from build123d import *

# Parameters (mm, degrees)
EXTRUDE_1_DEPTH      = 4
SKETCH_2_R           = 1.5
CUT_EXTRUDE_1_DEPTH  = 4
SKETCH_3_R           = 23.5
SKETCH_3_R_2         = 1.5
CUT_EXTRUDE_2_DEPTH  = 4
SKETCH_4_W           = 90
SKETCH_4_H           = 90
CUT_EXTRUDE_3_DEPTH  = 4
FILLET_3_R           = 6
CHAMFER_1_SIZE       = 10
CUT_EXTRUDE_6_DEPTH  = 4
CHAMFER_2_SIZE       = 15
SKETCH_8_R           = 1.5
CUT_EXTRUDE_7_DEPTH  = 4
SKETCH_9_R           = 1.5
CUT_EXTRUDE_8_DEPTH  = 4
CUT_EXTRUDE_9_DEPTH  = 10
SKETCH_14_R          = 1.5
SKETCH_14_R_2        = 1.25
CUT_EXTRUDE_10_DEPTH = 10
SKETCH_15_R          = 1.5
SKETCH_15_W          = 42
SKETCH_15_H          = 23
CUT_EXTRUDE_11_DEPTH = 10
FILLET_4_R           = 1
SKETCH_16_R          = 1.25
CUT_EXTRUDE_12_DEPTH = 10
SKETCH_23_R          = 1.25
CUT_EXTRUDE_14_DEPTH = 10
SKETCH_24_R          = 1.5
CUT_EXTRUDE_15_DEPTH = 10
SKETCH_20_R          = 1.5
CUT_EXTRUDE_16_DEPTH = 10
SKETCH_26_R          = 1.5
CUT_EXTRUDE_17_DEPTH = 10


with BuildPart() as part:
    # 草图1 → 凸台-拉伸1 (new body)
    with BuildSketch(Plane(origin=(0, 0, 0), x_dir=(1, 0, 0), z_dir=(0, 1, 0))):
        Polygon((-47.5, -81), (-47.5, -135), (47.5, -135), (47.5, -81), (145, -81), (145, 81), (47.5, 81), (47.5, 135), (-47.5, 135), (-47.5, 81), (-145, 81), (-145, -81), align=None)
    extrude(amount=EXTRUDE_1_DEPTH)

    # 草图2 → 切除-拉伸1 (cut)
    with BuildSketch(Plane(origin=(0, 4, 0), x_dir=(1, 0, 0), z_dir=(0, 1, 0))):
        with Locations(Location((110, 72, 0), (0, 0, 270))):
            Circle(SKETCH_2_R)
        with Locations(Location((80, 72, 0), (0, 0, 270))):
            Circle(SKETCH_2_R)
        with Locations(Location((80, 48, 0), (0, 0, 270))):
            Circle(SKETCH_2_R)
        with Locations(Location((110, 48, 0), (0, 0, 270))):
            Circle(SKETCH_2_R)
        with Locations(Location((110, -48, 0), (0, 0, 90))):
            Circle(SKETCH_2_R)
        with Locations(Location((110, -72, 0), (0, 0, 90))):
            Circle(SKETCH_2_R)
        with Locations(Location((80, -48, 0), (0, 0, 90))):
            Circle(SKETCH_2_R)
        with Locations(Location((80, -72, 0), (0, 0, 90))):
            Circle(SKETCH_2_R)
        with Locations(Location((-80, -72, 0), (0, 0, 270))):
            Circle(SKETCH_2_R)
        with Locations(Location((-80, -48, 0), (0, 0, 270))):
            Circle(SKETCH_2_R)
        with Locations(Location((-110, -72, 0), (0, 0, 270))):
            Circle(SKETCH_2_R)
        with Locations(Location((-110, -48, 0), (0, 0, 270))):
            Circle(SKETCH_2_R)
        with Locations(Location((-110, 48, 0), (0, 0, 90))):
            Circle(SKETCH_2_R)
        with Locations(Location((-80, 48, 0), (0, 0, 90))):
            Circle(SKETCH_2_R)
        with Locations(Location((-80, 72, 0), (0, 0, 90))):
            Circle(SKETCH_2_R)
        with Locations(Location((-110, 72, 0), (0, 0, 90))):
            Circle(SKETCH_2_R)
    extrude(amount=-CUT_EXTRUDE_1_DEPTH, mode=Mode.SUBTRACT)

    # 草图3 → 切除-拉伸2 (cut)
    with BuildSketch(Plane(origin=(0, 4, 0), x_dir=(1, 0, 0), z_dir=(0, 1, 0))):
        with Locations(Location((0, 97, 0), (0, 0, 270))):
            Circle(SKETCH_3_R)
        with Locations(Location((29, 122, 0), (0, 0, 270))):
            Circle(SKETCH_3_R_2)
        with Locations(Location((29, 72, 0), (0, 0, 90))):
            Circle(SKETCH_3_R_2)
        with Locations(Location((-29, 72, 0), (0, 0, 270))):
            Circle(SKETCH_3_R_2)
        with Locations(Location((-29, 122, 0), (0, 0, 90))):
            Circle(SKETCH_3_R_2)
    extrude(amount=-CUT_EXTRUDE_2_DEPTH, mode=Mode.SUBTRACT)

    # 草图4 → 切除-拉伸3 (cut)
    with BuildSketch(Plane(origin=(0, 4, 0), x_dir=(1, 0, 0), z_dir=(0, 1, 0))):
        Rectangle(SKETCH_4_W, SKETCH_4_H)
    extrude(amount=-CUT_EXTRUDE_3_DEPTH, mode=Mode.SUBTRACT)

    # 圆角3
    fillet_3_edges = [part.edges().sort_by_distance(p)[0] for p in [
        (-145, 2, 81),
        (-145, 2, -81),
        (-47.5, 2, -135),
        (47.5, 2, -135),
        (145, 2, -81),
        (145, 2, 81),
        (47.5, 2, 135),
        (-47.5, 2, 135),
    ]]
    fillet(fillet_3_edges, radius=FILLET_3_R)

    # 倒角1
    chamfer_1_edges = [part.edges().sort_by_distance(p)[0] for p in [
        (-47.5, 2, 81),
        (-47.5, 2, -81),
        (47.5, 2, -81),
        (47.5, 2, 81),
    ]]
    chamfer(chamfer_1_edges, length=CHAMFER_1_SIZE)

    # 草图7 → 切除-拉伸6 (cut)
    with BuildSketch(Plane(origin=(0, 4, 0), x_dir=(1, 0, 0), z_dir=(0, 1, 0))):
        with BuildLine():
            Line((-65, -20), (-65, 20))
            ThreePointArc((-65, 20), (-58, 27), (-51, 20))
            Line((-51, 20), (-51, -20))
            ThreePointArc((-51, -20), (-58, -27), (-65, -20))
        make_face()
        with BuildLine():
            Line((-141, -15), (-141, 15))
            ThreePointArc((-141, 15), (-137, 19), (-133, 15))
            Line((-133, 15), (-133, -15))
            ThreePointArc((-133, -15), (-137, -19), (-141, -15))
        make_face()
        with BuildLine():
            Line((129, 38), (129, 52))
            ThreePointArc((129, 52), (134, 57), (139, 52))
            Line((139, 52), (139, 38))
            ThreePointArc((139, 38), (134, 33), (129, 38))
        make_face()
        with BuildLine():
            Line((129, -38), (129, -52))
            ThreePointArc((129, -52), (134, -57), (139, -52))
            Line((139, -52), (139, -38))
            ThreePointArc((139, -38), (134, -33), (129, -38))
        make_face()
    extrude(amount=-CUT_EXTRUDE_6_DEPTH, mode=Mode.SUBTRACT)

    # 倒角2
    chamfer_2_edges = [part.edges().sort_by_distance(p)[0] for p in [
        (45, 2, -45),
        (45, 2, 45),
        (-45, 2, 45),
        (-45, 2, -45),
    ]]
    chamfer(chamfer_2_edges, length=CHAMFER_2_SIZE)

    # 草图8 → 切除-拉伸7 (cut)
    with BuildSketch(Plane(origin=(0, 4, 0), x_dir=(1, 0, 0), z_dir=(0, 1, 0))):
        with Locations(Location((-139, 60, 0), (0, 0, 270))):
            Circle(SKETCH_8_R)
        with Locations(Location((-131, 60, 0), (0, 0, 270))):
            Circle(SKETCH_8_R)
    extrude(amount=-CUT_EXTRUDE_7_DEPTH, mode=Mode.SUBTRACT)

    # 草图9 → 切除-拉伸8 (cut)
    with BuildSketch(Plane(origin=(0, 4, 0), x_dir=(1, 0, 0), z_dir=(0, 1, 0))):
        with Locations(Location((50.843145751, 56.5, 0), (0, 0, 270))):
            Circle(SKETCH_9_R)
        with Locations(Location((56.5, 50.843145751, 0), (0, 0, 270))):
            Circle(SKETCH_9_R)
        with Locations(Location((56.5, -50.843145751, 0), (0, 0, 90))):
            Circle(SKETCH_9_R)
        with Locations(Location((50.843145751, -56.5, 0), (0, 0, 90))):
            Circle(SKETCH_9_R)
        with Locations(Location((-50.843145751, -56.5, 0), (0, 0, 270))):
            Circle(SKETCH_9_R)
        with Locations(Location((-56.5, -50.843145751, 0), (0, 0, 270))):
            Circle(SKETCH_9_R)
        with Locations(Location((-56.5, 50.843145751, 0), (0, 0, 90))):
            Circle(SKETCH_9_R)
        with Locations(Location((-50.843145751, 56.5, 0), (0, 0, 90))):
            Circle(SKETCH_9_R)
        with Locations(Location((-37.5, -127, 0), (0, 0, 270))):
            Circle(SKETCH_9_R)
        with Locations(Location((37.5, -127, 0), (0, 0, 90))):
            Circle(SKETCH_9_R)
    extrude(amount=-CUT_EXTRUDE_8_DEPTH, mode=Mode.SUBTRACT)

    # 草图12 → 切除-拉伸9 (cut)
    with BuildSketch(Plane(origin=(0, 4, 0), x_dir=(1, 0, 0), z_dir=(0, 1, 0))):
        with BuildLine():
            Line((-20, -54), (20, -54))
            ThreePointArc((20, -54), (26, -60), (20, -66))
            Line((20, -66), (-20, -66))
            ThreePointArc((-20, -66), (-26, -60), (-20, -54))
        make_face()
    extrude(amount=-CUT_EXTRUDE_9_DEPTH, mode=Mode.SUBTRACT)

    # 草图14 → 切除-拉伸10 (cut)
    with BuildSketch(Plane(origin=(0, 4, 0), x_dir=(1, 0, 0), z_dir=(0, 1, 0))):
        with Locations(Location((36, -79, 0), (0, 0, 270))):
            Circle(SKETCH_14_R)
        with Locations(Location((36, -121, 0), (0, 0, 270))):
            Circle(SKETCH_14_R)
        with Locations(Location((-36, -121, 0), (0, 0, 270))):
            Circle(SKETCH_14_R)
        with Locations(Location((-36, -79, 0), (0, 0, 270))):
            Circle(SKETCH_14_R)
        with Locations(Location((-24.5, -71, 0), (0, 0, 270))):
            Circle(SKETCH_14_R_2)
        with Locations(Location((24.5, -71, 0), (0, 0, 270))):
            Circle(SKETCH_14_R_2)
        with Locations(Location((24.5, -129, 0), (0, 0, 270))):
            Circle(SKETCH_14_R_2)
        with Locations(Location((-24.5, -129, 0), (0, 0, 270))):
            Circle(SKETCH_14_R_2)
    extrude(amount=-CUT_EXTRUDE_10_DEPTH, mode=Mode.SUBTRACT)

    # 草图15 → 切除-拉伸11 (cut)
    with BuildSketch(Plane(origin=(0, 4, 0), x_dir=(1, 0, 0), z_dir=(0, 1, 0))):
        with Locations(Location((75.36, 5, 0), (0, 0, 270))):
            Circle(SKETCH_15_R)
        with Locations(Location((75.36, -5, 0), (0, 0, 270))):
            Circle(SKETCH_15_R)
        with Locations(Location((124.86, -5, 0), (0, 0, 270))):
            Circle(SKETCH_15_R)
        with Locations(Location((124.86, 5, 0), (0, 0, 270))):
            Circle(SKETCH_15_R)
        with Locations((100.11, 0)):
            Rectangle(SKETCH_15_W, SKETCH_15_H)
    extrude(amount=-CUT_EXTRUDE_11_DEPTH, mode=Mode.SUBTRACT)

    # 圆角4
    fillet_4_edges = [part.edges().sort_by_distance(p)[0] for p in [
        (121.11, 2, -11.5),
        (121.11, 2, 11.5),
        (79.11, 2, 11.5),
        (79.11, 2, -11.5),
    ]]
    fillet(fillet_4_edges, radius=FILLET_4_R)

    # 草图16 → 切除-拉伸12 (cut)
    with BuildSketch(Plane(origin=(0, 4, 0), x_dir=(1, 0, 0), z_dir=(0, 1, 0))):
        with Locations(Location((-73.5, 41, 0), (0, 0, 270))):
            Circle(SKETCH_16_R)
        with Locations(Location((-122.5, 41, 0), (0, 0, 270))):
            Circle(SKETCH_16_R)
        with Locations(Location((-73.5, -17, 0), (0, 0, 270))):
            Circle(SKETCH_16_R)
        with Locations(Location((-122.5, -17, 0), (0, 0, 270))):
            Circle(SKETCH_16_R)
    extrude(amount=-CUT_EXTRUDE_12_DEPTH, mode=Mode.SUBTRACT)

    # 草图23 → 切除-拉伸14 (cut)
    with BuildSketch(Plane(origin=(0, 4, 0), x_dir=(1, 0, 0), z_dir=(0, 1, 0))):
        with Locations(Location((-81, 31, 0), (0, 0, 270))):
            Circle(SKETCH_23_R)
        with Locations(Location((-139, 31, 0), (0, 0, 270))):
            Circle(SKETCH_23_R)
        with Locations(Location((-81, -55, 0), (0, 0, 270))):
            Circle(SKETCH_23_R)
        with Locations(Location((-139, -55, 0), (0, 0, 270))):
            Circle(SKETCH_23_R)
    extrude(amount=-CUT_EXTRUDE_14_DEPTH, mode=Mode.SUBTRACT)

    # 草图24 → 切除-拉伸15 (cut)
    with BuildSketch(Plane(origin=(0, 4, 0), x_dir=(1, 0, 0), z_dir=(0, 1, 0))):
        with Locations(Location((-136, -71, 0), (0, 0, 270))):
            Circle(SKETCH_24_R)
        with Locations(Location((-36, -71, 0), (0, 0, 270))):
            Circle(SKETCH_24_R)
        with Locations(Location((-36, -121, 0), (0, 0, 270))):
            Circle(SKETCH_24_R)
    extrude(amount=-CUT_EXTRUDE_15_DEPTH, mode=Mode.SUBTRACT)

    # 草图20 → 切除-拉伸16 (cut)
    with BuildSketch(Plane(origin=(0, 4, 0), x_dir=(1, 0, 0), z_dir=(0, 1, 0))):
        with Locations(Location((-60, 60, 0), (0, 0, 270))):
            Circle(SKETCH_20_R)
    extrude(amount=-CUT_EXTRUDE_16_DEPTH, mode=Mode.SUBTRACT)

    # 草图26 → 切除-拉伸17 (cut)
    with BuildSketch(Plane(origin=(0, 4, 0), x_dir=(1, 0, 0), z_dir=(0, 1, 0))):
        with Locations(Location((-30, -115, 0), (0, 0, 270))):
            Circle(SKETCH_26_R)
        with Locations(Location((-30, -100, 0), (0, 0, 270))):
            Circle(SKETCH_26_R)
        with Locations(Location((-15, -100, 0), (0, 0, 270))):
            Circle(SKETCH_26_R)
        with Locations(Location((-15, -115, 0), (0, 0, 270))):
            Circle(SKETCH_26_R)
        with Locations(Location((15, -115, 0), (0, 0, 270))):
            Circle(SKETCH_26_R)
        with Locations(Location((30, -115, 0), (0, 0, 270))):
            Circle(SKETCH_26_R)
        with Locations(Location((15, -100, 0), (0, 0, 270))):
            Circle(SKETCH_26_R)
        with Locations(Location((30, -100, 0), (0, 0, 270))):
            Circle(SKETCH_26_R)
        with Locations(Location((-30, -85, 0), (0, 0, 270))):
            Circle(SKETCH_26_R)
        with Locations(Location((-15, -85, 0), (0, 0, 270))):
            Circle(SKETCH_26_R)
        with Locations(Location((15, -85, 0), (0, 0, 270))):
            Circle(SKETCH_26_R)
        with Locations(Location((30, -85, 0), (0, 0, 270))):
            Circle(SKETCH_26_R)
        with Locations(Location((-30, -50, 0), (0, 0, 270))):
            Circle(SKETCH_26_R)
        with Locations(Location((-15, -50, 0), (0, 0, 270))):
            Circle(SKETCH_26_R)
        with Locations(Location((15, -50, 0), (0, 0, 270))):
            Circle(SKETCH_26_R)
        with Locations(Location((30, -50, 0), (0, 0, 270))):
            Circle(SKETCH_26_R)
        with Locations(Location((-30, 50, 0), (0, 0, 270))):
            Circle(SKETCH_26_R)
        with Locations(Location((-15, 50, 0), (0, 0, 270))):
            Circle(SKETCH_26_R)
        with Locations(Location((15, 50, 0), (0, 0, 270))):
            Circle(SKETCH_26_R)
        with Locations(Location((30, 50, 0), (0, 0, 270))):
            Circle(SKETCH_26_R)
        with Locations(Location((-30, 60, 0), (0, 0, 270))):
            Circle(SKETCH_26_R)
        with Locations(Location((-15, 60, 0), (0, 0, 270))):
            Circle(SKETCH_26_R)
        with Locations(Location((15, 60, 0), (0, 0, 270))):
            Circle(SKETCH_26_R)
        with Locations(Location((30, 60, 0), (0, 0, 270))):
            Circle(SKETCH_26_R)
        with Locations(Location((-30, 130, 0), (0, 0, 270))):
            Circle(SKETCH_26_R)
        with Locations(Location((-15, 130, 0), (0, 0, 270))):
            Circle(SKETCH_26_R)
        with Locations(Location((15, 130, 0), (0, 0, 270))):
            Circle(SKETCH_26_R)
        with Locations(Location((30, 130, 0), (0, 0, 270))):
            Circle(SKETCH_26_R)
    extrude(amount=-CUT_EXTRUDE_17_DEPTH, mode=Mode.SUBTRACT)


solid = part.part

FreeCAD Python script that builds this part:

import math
import FreeCAD as App
import Part
import Sketcher


def edges_at(feature, points):
    """Names of the edges that pass closest to the given points."""
    edges = feature.Shape.Edges
    near = lambda p: min(range(len(edges)), key=lambda i: edges[i].distToShape(Part.Vertex(*p))[0])
    return sorted({f"Edge{near(p) + 1}" for p in points})

doc = App.newDocument("Part")
body = doc.addObject("PartDesign::Body", "Body")

sketch1 = body.newObject("Sketcher::SketchObject", "Sketch")
sketch1.AttachmentSupport = (doc.getObject("XZ_Plane"), [""])
sketch1.MapMode = "FlatFace"
sketch1.addGeometry(Part.LineSegment(App.Vector(-47.5, 81, 0), App.Vector(-47.5, 135, 0)), False)
sketch1.addGeometry(Part.LineSegment(App.Vector(-47.5, 135, 0), App.Vector(47.5, 135, 0)), False)
sketch1.addGeometry(Part.LineSegment(App.Vector(47.5, 135, 0), App.Vector(47.5, 81, 0)), False)
sketch1.addGeometry(Part.LineSegment(App.Vector(47.5, 81, 0), App.Vector(145, 81, 0)), False)
sketch1.addGeometry(Part.LineSegment(App.Vector(145, 81, 0), App.Vector(145, -81, 0)), False)
sketch1.addGeometry(Part.LineSegment(App.Vector(145, -81, 0), App.Vector(47.5, -81, 0)), False)
sketch1.addGeometry(Part.LineSegment(App.Vector(47.5, -81, 0), App.Vector(47.5, -135, 0)), False)
sketch1.addGeometry(Part.LineSegment(App.Vector(47.5, -135, 0), App.Vector(-47.5, -135, 0)), False)
sketch1.addGeometry(Part.LineSegment(App.Vector(-47.5, -135, 0), App.Vector(-47.5, -81, 0)), False)
sketch1.addGeometry(Part.LineSegment(App.Vector(-47.5, -81, 0), App.Vector(-145, -81, 0)), False)
sketch1.addGeometry(Part.LineSegment(App.Vector(-145, -81, 0), App.Vector(-145, 81, 0)), False)
sketch1.addGeometry(Part.LineSegment(App.Vector(-145, 81, 0), App.Vector(-47.5, 81, 0)), False)
sketch1.addConstraint(Sketcher.Constraint("Coincident", 0, 2, 1, 1))
sketch1.addConstraint(Sketcher.Constraint("Coincident", 1, 2, 2, 1))
sketch1.addConstraint(Sketcher.Constraint("Coincident", 2, 2, 3, 1))
sketch1.addConstraint(Sketcher.Constraint("Coincident", 3, 2, 4, 1))
sketch1.addConstraint(Sketcher.Constraint("Coincident", 4, 2, 5, 1))
sketch1.addConstraint(Sketcher.Constraint("Coincident", 5, 2, 6, 1))
sketch1.addConstraint(Sketcher.Constraint("Coincident", 6, 2, 7, 1))
sketch1.addConstraint(Sketcher.Constraint("Coincident", 7, 2, 8, 1))
sketch1.addConstraint(Sketcher.Constraint("Coincident", 8, 2, 9, 1))
sketch1.addConstraint(Sketcher.Constraint("Coincident", 9, 2, 10, 1))
sketch1.addConstraint(Sketcher.Constraint("Coincident", 10, 2, 11, 1))
sketch1.addConstraint(Sketcher.Constraint("Coincident", 11, 2, 0, 1))
sketch1.addConstraint(Sketcher.Constraint("Vertical", 0))
sketch1.addConstraint(Sketcher.Constraint("Horizontal", 1))
sketch1.addConstraint(Sketcher.Constraint("Vertical", 2))
sketch1.addConstraint(Sketcher.Constraint("Horizontal", 3))
sketch1.addConstraint(Sketcher.Constraint("Vertical", 4))
sketch1.addConstraint(Sketcher.Constraint("Horizontal", 5))
sketch1.addConstraint(Sketcher.Constraint("Vertical", 6))
sketch1.addConstraint(Sketcher.Constraint("Horizontal", 7))
sketch1.addConstraint(Sketcher.Constraint("Vertical", 8))
sketch1.addConstraint(Sketcher.Constraint("Horizontal", 9))
sketch1.addConstraint(Sketcher.Constraint("Vertical", 10))
sketch1.addConstraint(Sketcher.Constraint("Horizontal", 11))
sketch1.addConstraint(Sketcher.Constraint("Symmetric", 0, 2, 6, 2, -1, 1))
sketch1.addConstraint(Sketcher.Constraint("Symmetric", 2, 2, 8, 2, -1, 1))
sketch1.addConstraint(Sketcher.Constraint("Symmetric", 4, 2, 10, 2, -1, 1))
sketch1.addConstraint(Sketcher.Constraint("Symmetric", 5, 2, 8, 2, -2))
sketch1.addConstraint(Sketcher.Constraint("DistanceX", 1, 1, 1, 2, 95.0))
sketch1.addConstraint(Sketcher.Constraint("DistanceY", 0, 1, 0, 2, 54.0))
sketch1.addConstraint(Sketcher.Constraint("DistanceY", 4, 2, 4, 1, 162.0))
sketch1.addConstraint(Sketcher.Constraint("DistanceX", 3, 1, 3, 2, 97.5))
pad1 = body.newObject("PartDesign::Pad", "Pad")
pad1.Profile = sketch1
pad1.Length = 4
pad1.Reversed = True

sketch2 = body.newObject("Sketcher::SketchObject", "Sketch001")
sketch2.AttachmentSupport = (doc.getObject("XZ_Plane"), [""])
sketch2.MapMode = "FlatFace"
sketch2.AttachmentOffset = App.Placement(App.Vector(0, 0, -4), App.Rotation())
sketch2.addGeometry(Part.Circle(App.Vector(110, -72, 0), App.Vector(0, 0, 1), 1.5), False)
sketch2.addGeometry(Part.Circle(App.Vector(80, -72, 0), App.Vector(0, 0, 1), 1.5), False)
sketch2.addGeometry(Part.Circle(App.Vector(80, -48, 0), App.Vector(0, 0, 1), 1.5), False)
sketch2.addGeometry(Part.Circle(App.Vector(110, -48, 0), App.Vector(0, 0, 1), 1.5), False)
sketch2.addGeometry(Part.Circle(App.Vector(110, 48, 0), App.Vector(0, 0, 1), 1.5), False)
sketch2.addGeometry(Part.Circle(App.Vector(110, 72, 0), App.Vector(0, 0, 1), 1.5), False)
sketch2.addGeometry(Part.Circle(App.Vector(80, 48, 0), App.Vector(0, 0, 1), 1.5), False)
sketch2.addGeometry(Part.Circle(App.Vector(80, 72, 0), App.Vector(0, 0, 1), 1.5), False)
sketch2.addGeometry(Part.Circle(App.Vector(-80, 72, 0), App.Vector(0, 0, 1), 1.5), False)
sketch2.addGeometry(Part.Circle(App.Vector(-80, 48, 0), App.Vector(0, 0, 1), 1.5), False)
sketch2.addGeometry(Part.Circle(App.Vector(-110, 72, 0), App.Vector(0, 0, 1), 1.5), False)
sketch2.addGeometry(Part.Circle(App.Vector(-110, 48, 0), App.Vector(0, 0, 1), 1.5), False)
sketch2.addGeometry(Part.Circle(App.Vector(-110, -48, 0), App.Vector(0, 0, 1), 1.5), False)
sketch2.addGeometry(Part.Circle(App.Vector(-80, -48, 0), App.Vector(0, 0, 1), 1.5), False)
sketch2.addGeometry(Part.Circle(App.Vector(-80, -72, 0), App.Vector(0, 0, 1), 1.5), False)
sketch2.addGeometry(Part.Circle(App.Vector(-110, -72, 0), App.Vector(0, 0, 1), 1.5), False)
sketch2.addConstraint(Sketcher.Constraint("Equal", 0, 1))
sketch2.addConstraint(Sketcher.Constraint("Equal", 1, 2))
sketch2.addConstraint(Sketcher.Constraint("Equal", 2, 3))
sketch2.addConstraint(Sketcher.Constraint("Equal", 3, 4))
sketch2.addConstraint(Sketcher.Constraint("Equal", 4, 5))
sketch2.addConstraint(Sketcher.Constraint("Equal", 5, 6))
sketch2.addConstraint(Sketcher.Constraint("Equal", 6, 7))
sketch2.addConstraint(Sketcher.Constraint("Equal", 7, 8))
sketch2.addConstraint(Sketcher.Constraint("Equal", 8, 9))
sketch2.addConstraint(Sketcher.Constraint("Equal", 9, 10))
sketch2.addConstraint(Sketcher.Constraint("Equal", 10, 11))
sketch2.addConstraint(Sketcher.Constraint("Equal", 11, 12))
sketch2.addConstraint(Sketcher.Constraint("Equal", 12, 13))
sketch2.addConstraint(Sketcher.Constraint("Equal", 13, 14))
sketch2.addConstraint(Sketcher.Constraint("Equal", 14, 15))
sketch2.addConstraint(Sketcher.Constraint("Symmetric", 1, 3, 8, 3, -1, 1))
sketch2.addConstraint(Sketcher.Constraint("Symmetric", 2, 3, 9, 3, -1, 1))
sketch2.addConstraint(Sketcher.Constraint("Symmetric", 0, 3, 10, 3, -1, 1))
sketch2.addConstraint(Sketcher.Constraint("Symmetric", 3, 3, 11, 3, -1, 1))
sketch2.addConstraint(Sketcher.Constraint("Symmetric", 4, 3, 12, 3, -1, 1))
sketch2.addConstraint(Sketcher.Constraint("Symmetric", 6, 3, 13, 3, -1, 1))
sketch2.addConstraint(Sketcher.Constraint("Symmetric", 7, 3, 14, 3, -1, 1))
sketch2.addConstraint(Sketcher.Constraint("Symmetric", 5, 3, 15, 3, -1, 1))
sketch2.addConstraint(Sketcher.Constraint("Symmetric", 7, 3, 8, 3, -2))
sketch2.addConstraint(Sketcher.Constraint("Symmetric", 6, 3, 9, 3, -2))
sketch2.addConstraint(Sketcher.Constraint("Symmetric", 5, 3, 10, 3, -2))
sketch2.addConstraint(Sketcher.Constraint("Symmetric", 4, 3, 11, 3, -2))
sketch2.addConstraint(Sketcher.Constraint("Horizontal", 0, 3, 1, 3))
sketch2.addConstraint(Sketcher.Constraint("Horizontal", 2, 3, 3, 3))
sketch2.addConstraint(Sketcher.Constraint("Vertical", 1, 3, 2, 3))
sketch2.addConstraint(Sketcher.Constraint("Vertical", 0, 3, 3, 3))
sketch2.addConstraint(Sketcher.Constraint("Diameter", 0, 3.0))
sketch2.addConstraint(Sketcher.Constraint("DistanceX", -1, 1, 0, 3, 110.0))
sketch2.addConstraint(Sketcher.Constraint("DistanceY", 0, 3, -1, 1, 72.0))
sketch2.addConstraint(Sketcher.Constraint("DistanceX", -1, 1, 1, 3, 80.0))
sketch2.addConstraint(Sketcher.Constraint("DistanceY", 2, 3, -1, 1, 48.0))
pocket1 = body.newObject("PartDesign::Pocket", "Pocket")
pocket1.Profile = sketch2
pocket1.Length = 4
pocket1.Reversed = True

sketch3 = body.newObject("Sketcher::SketchObject", "Sketch002")
sketch3.AttachmentSupport = (doc.getObject("XZ_Plane"), [""])
sketch3.MapMode = "FlatFace"
sketch3.AttachmentOffset = App.Placement(App.Vector(0, 0, -4), App.Rotation())
sketch3.addGeometry(Part.Circle(App.Vector(0, -97, 0), App.Vector(0, 0, 1), 23.5), False)
sketch3.addGeometry(Part.Circle(App.Vector(29, -122, 0), App.Vector(0, 0, 1), 1.5), False)
sketch3.addGeometry(Part.Circle(App.Vector(29, -72, 0), App.Vector(0, 0, 1), 1.5), False)
sketch3.addGeometry(Part.Circle(App.Vector(-29, -72, 0), App.Vector(0, 0, 1), 1.5), False)
sketch3.addGeometry(Part.Circle(App.Vector(-29, -122, 0), App.Vector(0, 0, 1), 1.5), False)
sketch3.addConstraint(Sketcher.Constraint("Equal", 1, 2))
sketch3.addConstraint(Sketcher.Constraint("Equal", 2, 3))
sketch3.addConstraint(Sketcher.Constraint("Equal", 3, 4))
sketch3.addConstraint(Sketcher.Constraint("Symmetric", 2, 3, 3, 3, -2))
sketch3.addConstraint(Sketcher.Constraint("Symmetric", 1, 3, 4, 3, -2))
sketch3.addConstraint(Sketcher.Constraint("PointOnObject", 0, 3, -2))
sketch3.addConstraint(Sketcher.Constraint("Vertical", 1, 3, 2, 3))
sketch3.addConstraint(Sketcher.Constraint("Diameter", 0, 47.0))
sketch3.addConstraint(Sketcher.Constraint("Diameter", 1, 3.0))
sketch3.addConstraint(Sketcher.Constraint("DistanceY", 0, 3, -1, 1, 97.0))
sketch3.addConstraint(Sketcher.Constraint("DistanceX", -1, 1, 1, 3, 29.0))
sketch3.addConstraint(Sketcher.Constraint("DistanceY", 1, 3, -1, 1, 122.0))
sketch3.addConstraint(Sketcher.Constraint("DistanceY", 2, 3, -1, 1, 72.0))
pocket2 = body.newObject("PartDesign::Pocket", "Pocket001")
pocket2.Profile = sketch3
pocket2.Length = 4
pocket2.Reversed = True

sketch4 = body.newObject("Sketcher::SketchObject", "Sketch003")
sketch4.AttachmentSupport = (doc.getObject("XZ_Plane"), [""])
sketch4.MapMode = "FlatFace"
sketch4.AttachmentOffset = App.Placement(App.Vector(0, 0, -4), App.Rotation())
sketch4.addGeometry(Part.LineSegment(App.Vector(-45, -45, 0), App.Vector(-45, 45, 0)), False)
sketch4.addGeometry(Part.LineSegment(App.Vector(-45, 45, 0), App.Vector(45, 45, 0)), False)
sketch4.addGeometry(Part.LineSegment(App.Vector(45, 45, 0), App.Vector(45, -45, 0)), False)
sketch4.addGeometry(Part.LineSegment(App.Vector(45, -45, 0), App.Vector(-45, -45, 0)), False)
sketch4.addConstraint(Sketcher.Constraint("Coincident", 0, 2, 1, 1))
sketch4.addConstraint(Sketcher.Constraint("Coincident", 1, 2, 2, 1))
sketch4.addConstraint(Sketcher.Constraint("Coincident", 2, 2, 3, 1))
sketch4.addConstraint(Sketcher.Constraint("Coincident", 3, 2, 0, 1))
sketch4.addConstraint(Sketcher.Constraint("Vertical", 0))
sketch4.addConstraint(Sketcher.Constraint("Horizontal", 1))
sketch4.addConstraint(Sketcher.Constraint("Vertical", 2))
sketch4.addConstraint(Sketcher.Constraint("Horizontal", 3))
sketch4.addConstraint(Sketcher.Constraint("Symmetric", 0, 2, 2, 2, -1, 1))
sketch4.addConstraint(Sketcher.Constraint("Equal", 3, 0))
sketch4.addConstraint(Sketcher.Constraint("DistanceX", 1, 1, 1, 2, 90.0))
pocket3 = body.newObject("PartDesign::Pocket", "Pocket002")
pocket3.Profile = sketch4
pocket3.Length = 4
pocket3.Reversed = True
doc.recompute()

fillet = body.newObject("PartDesign::Fillet", "Fillet")
fillet.Base = (pocket3, edges_at(pocket3, [
    (-145, 2, 81),
    (-145, 2, -81),
    (-47.5, 2, -135),
    (47.5, 2, -135),
    (145, 2, -81),
    (145, 2, 81),
    (47.5, 2, 135),
    (-47.5, 2, 135),
]))
fillet.Radius = 6
doc.recompute()

chamfer = body.newObject("PartDesign::Chamfer", "Chamfer")
chamfer.Base = (fillet, edges_at(fillet, [
    (-47.5, 2, 81),
    (-47.5, 2, -81),
    (47.5, 2, -81),
    (47.5, 2, 81),
]))
chamfer.Size = 10

sketch5 = body.newObject("Sketcher::SketchObject", "Sketch004")
sketch5.AttachmentSupport = (doc.getObject("XZ_Plane"), [""])
sketch5.MapMode = "FlatFace"
sketch5.AttachmentOffset = App.Placement(App.Vector(0, 0, -4), App.Rotation())
sketch5.addGeometry(Part.LineSegment(App.Vector(-65, -20, 0), App.Vector(-65, 20, 0)), False)
sketch5.addGeometry(Part.ArcOfCircle(Part.Circle(App.Vector(-58, 20, 0), App.Vector(0, 0, 1), 7), math.radians(0), math.radians(180)), False)
sketch5.addGeometry(Part.LineSegment(App.Vector(-51, 20, 0), App.Vector(-51, -20, 0)), False)
sketch5.addGeometry(Part.ArcOfCircle(Part.Circle(App.Vector(-58, -20, 0), App.Vector(0, 0, 1), 7), math.radians(180), math.radians(360)), False)
sketch5.addGeometry(Part.LineSegment(App.Vector(-141, -15, 0), App.Vector(-141, 15, 0)), False)
sketch5.addGeometry(Part.ArcOfCircle(Part.Circle(App.Vector(-137, 15, 0), App.Vector(0, 0, 1), 4), math.radians(0), math.radians(180)), False)
sketch5.addGeometry(Part.LineSegment(App.Vector(-133, 15, 0), App.Vector(-133, -15, 0)), False)
sketch5.addGeometry(Part.ArcOfCircle(Part.Circle(App.Vector(-137, -15, 0), App.Vector(0, 0, 1), 4), math.radians(180), math.radians(360)), False)
sketch5.addGeometry(Part.LineSegment(App.Vector(129, -52, 0), App.Vector(129, -38, 0)), False)
sketch5.addGeometry(Part.ArcOfCircle(Part.Circle(App.Vector(134, -38, 0), App.Vector(0, 0, 1), 5), math.radians(0), math.radians(180)), False)
sketch5.addGeometry(Part.LineSegment(App.Vector(139, -38, 0), App.Vector(139, -52, 0)), False)
sketch5.addGeometry(Part.ArcOfCircle(Part.Circle(App.Vector(134, -52, 0), App.Vector(0, 0, 1), 5), math.radians(180), math.radians(360)), False)
sketch5.addGeometry(Part.LineSegment(App.Vector(129, 38, 0), App.Vector(129, 52, 0)), False)
sketch5.addGeometry(Part.ArcOfCircle(Part.Circle(App.Vector(134, 52, 0), App.Vector(0, 0, 1), 5), math.radians(0), math.radians(180)), False)
sketch5.addGeometry(Part.LineSegment(App.Vector(139, 52, 0), App.Vector(139, 38, 0)), False)
sketch5.addGeometry(Part.ArcOfCircle(Part.Circle(App.Vector(134, 38, 0), App.Vector(0, 0, 1), 5), math.radians(180), math.radians(360)), False)
sketch5.addConstraint(Sketcher.Constraint("Tangent", 0, 2, 1, 2))
sketch5.addConstraint(Sketcher.Constraint("Tangent", 1, 1, 2, 1))
sketch5.addConstraint(Sketcher.Constraint("Tangent", 2, 2, 3, 2))
sketch5.addConstraint(Sketcher.Constraint("Tangent", 3, 1, 0, 1))
sketch5.addConstraint(Sketcher.Constraint("Tangent", 4, 2, 5, 2))
sketch5.addConstraint(Sketcher.Constraint("Tangent", 5, 1, 6, 1))
sketch5.addConstraint(Sketcher.Constraint("Tangent", 6, 2, 7, 2))
sketch5.addConstraint(Sketcher.Constraint("Tangent", 7, 1, 4, 1))
sketch5.addConstraint(Sketcher.Constraint("Tangent", 8, 2, 9, 2))
sketch5.addConstraint(Sketcher.Constraint("Tangent", 9, 1, 10, 1))
sketch5.addConstraint(Sketcher.Constraint("Tangent", 10, 2, 11, 2))
sketch5.addConstraint(Sketcher.Constraint("Tangent", 11, 1, 8, 1))
sketch5.addConstraint(Sketcher.Constraint("Tangent", 12, 2, 13, 2))
sketch5.addConstraint(Sketcher.Constraint("Tangent", 13, 1, 14, 1))
sketch5.addConstraint(Sketcher.Constraint("Tangent", 14, 2, 15, 2))
sketch5.addConstraint(Sketcher.Constraint("Tangent", 15, 1, 12, 1))
sketch5.addConstraint(Sketcher.Constraint("Vertical", 0))
sketch5.addConstraint(Sketcher.Constraint("Vertical", 2))
sketch5.addConstraint(Sketcher.Constraint("Vertical", 4))
sketch5.addConstraint(Sketcher.Constraint("Vertical", 6))
sketch5.addConstraint(Sketcher.Constraint("Vertical", 8))
sketch5.addConstraint(Sketcher.Constraint("Vertical", 10))
sketch5.addConstraint(Sketcher.Constraint("Vertical", 12))
sketch5.addConstraint(Sketcher.Constraint("Vertical", 14))
sketch5.addConstraint(Sketcher.Constraint("Equal", 11, 13))
sketch5.addConstraint(Sketcher.Constraint("Symmetric", 11, 3, 13, 3, -1))
sketch5.addConstraint(Sketcher.Constraint("Equal", 10, 12))
sketch5.addConstraint(Sketcher.Constraint("Radius", 1, 7.0))
sketch5.addConstraint(Sketcher.Constraint("Radius", 5, 4.0))
sketch5.addConstraint(Sketcher.Constraint("Radius", 9, 5.0))
sketch5.addConstraint(Sketcher.Constraint("DistanceY", 0, 1, 0, 2, 40.0))
sketch5.addConstraint(Sketcher.Constraint("DistanceY", 4, 1, 4, 2, 30.0))
sketch5.addConstraint(Sketcher.Constraint("DistanceY", 8, 1, 8, 2, 14.0))
sketch5.addConstraint(Sketcher.Constraint("DistanceX", 1, 3, -1, 1, 58.0))
sketch5.addConstraint(Sketcher.Constraint("DistanceY", -1, 1, 1, 3, 20.0))
sketch5.addConstraint(Sketcher.Constraint("DistanceX", 5, 3, -1, 1, 137.0))
sketch5.addConstraint(Sketcher.Constraint("DistanceY", -1, 1, 5, 3, 15.0))
sketch5.addConstraint(Sketcher.Constraint("DistanceX", -1, 1, 9, 3, 134.0))
sketch5.addConstraint(Sketcher.Constraint("DistanceY", 9, 3, -1, 1, 38.0))
pocket4 = body.newObject("PartDesign::Pocket", "Pocket003")
pocket4.Profile = sketch5
pocket4.Length = 4
pocket4.Reversed = True
doc.recompute()

chamfer2 = body.newObject("PartDesign::Chamfer", "Chamfer001")
chamfer2.Base = (pocket4, edges_at(pocket4, [
    (45, 2, -45),
    (45, 2, 45),
    (-45, 2, 45),
    (-45, 2, -45),
]))
chamfer2.Size = 15

sketch6 = body.newObject("Sketcher::SketchObject", "Sketch005")
sketch6.AttachmentSupport = (doc.getObject("XZ_Plane"), [""])
sketch6.MapMode = "FlatFace"
sketch6.AttachmentOffset = App.Placement(App.Vector(0, 0, -4), App.Rotation())
sketch6.addGeometry(Part.Circle(App.Vector(-139, -60, 0), App.Vector(0, 0, 1), 1.5), False)
sketch6.addGeometry(Part.Circle(App.Vector(-131, -60, 0), App.Vector(0, 0, 1), 1.5), False)
sketch6.addConstraint(Sketcher.Constraint("Equal", 0, 1))
sketch6.addConstraint(Sketcher.Constraint("Horizontal", 0, 3, 1, 3))
sketch6.addConstraint(Sketcher.Constraint("Diameter", 0, 3.0))
sketch6.addConstraint(Sketcher.Constraint("DistanceX", 0, 3, -1, 1, 139.0))
sketch6.addConstraint(Sketcher.Constraint("DistanceY", 0, 3, -1, 1, 60.0))
sketch6.addConstraint(Sketcher.Constraint("DistanceX", 1, 3, -1, 1, 131.0))
pocket5 = body.newObject("PartDesign::Pocket", "Pocket004")
pocket5.Profile = sketch6
pocket5.Length = 4
pocket5.Reversed = True

sketch7 = body.newObject("Sketcher::SketchObject", "Sketch006")
sketch7.AttachmentSupport = (doc.getObject("XZ_Plane"), [""])
sketch7.MapMode = "FlatFace"
sketch7.AttachmentOffset = App.Placement(App.Vector(0, 0, -4), App.Rotation())
sketch7.addGeometry(Part.Circle(App.Vector(50.843146, -56.5, 0), App.Vector(0, 0, 1), 1.5), False)
sketch7.addGeometry(Part.Circle(App.Vector(56.5, -50.843146, 0), App.Vector(0, 0, 1), 1.5), False)
sketch7.addGeometry(Part.Circle(App.Vector(56.5, 50.843146, 0), App.Vector(0, 0, 1), 1.5), False)
sketch7.addGeometry(Part.Circle(App.Vector(50.843146, 56.5, 0), App.Vector(0, 0, 1), 1.5), False)
sketch7.addGeometry(Part.Circle(App.Vector(-50.843146, 56.5, 0), App.Vector(0, 0, 1), 1.5), False)
sketch7.addGeometry(Part.Circle(App.Vector(-56.5, 50.843146, 0), App.Vector(0, 0, 1), 1.5), False)
sketch7.addGeometry(Part.Circle(App.Vector(-56.5, -50.843146, 0), App.Vector(0, 0, 1), 1.5), False)
sketch7.addGeometry(Part.Circle(App.Vector(-50.843146, -56.5, 0), App.Vector(0, 0, 1), 1.5), False)
sketch7.addGeometry(Part.Circle(App.Vector(-37.5, 127, 0), App.Vector(0, 0, 1), 1.5), False)
sketch7.addGeometry(Part.Circle(App.Vector(37.5, 127, 0), App.Vector(0, 0, 1), 1.5), False)
sketch7.addConstraint(Sketcher.Constraint("Equal", 0, 1))
sketch7.addConstraint(Sketcher.Constraint("Equal", 1, 2))
sketch7.addConstraint(Sketcher.Constraint("Equal", 2, 3))
sketch7.addConstraint(Sketcher.Constraint("Equal", 3, 4))
sketch7.addConstraint(Sketcher.Constraint("Equal", 4, 5))
sketch7.addConstraint(Sketcher.Constraint("Equal", 5, 6))
sketch7.addConstraint(Sketcher.Constraint("Equal", 6, 7))
sketch7.addConstraint(Sketcher.Constraint("Equal", 7, 8))
sketch7.addConstraint(Sketcher.Constraint("Equal", 8, 9))
sketch7.addConstraint(Sketcher.Constraint("Symmetric", 0, 3, 4, 3, -1, 1))
sketch7.addConstraint(Sketcher.Constraint("Symmetric", 1, 3, 5, 3, -1, 1))
sketch7.addConstraint(Sketcher.Constraint("Symmetric", 2, 3, 6, 3, -1, 1))
sketch7.addConstraint(Sketcher.Constraint("Symmetric", 3, 3, 7, 3, -1, 1))
sketch7.addConstraint(Sketcher.Constraint("Symmetric", 3, 3, 4, 3, -2))
sketch7.addConstraint(Sketcher.Constraint("Symmetric", 2, 3, 5, 3, -2))
sketch7.addConstraint(Sketcher.Constraint("Symmetric", 8, 3, 9, 3, -2))
sketch7.addConstraint(Sketcher.Constraint("Diameter", 0, 3.0))
sketch7.addConstraint(Sketcher.Constraint("DistanceY", -1, 1, 8, 3, 127.0))
sketch7.addConstraint(Sketcher.Constraint("DistanceY", 0, 3, 3, 3, 113.0))
sketch7.addConstraint(Sketcher.Constraint("DistanceX", 5, 3, 2, 3, 113.0))
sketch7.addConstraint(Sketcher.Constraint("DistanceX", 5, 3, 8, 3, 19.0))
sketch7.addConstraint(Sketcher.Constraint("DistanceY", 1, 3, 2, 3, 101.686292))
sketch7.addConstraint(Sketcher.Constraint("DistanceX", 4, 3, 3, 3, 101.686292))
pocket6 = body.newObject("PartDesign::Pocket", "Pocket005")
pocket6.Profile = sketch7
pocket6.Length = 4
pocket6.Reversed = True

sketch8 = body.newObject("Sketcher::SketchObject", "Sketch007")
sketch8.AttachmentSupport = (doc.getObject("XZ_Plane"), [""])
sketch8.MapMode = "FlatFace"
sketch8.AttachmentOffset = App.Placement(App.Vector(0, 0, -4), App.Rotation())
sketch8.addGeometry(Part.LineSegment(App.Vector(20, 54, 0), App.Vector(-20, 54, 0)), False)
sketch8.addGeometry(Part.ArcOfCircle(Part.Circle(App.Vector(-20, 60, 0), App.Vector(0, 0, 1), 6), math.radians(90), math.radians(270)), False)
sketch8.addGeometry(Part.LineSegment(App.Vector(-20, 66, 0), App.Vector(20, 66, 0)), False)
sketch8.addGeometry(Part.ArcOfCircle(Part.Circle(App.Vector(20, 60, 0), App.Vector(0, 0, 1), 6), math.radians(-90), math.radians(90)), False)
sketch8.addConstraint(Sketcher.Constraint("Tangent", 0, 2, 1, 2))
sketch8.addConstraint(Sketcher.Constraint("Tangent", 1, 1, 2, 1))
sketch8.addConstraint(Sketcher.Constraint("Tangent", 2, 2, 3, 2))
sketch8.addConstraint(Sketcher.Constraint("Tangent", 3, 1, 0, 1))
sketch8.addConstraint(Sketcher.Constraint("Horizontal", 0))
sketch8.addConstraint(Sketcher.Constraint("Horizontal", 2))
sketch8.addConstraint(Sketcher.Constraint("Radius", 1, 6.0))
sketch8.addConstraint(Sketcher.Constraint("DistanceX", 0, 2, 0, 1, 40.0))
sketch8.addConstraint(Sketcher.Constraint("DistanceX", 1, 3, -1, 1, 20.0))
sketch8.addConstraint(Sketcher.Constraint("DistanceY", -1, 1, 1, 3, 60.0))
pocket7 = body.newObject("PartDesign::Pocket", "Pocket006")
pocket7.Profile = sketch8
pocket7.Length = 10
pocket7.Reversed = True

sketch9 = body.newObject("Sketcher::SketchObject", "Sketch008")
sketch9.AttachmentSupport = (doc.getObject("XZ_Plane"), [""])
sketch9.MapMode = "FlatFace"
sketch9.AttachmentOffset = App.Placement(App.Vector(0, 0, -4), App.Rotation())
sketch9.addGeometry(Part.Circle(App.Vector(36, 79, 0), App.Vector(0, 0, 1), 1.5), False)
sketch9.addGeometry(Part.Circle(App.Vector(36, 121, 0), App.Vector(0, 0, 1), 1.5), False)
sketch9.addGeometry(Part.Circle(App.Vector(-36, 121, 0), App.Vector(0, 0, 1), 1.5), False)
sketch9.addGeometry(Part.Circle(App.Vector(-36, 79, 0), App.Vector(0, 0, 1), 1.5), False)
sketch9.addGeometry(Part.Circle(App.Vector(-24.5, 71, 0), App.Vector(0, 0, 1), 1.25), False)
sketch9.addGeometry(Part.Circle(App.Vector(24.5, 71, 0), App.Vector(0, 0, 1), 1.25), False)
sketch9.addGeometry(Part.Circle(App.Vector(24.5, 129, 0), App.Vector(0, 0, 1), 1.25), False)
sketch9.addGeometry(Part.Circle(App.Vector(-24.5, 129, 0), App.Vector(0, 0, 1), 1.25), False)
sketch9.addConstraint(Sketcher.Constraint("Equal", 0, 1))
sketch9.addConstraint(Sketcher.Constraint("Equal", 1, 2))
sketch9.addConstraint(Sketcher.Constraint("Equal", 2, 3))
sketch9.addConstraint(Sketcher.Constraint("Equal", 4, 5))
sketch9.addConstraint(Sketcher.Constraint("Equal", 5, 6))
sketch9.addConstraint(Sketcher.Constraint("Equal", 6, 7))
sketch9.addConstraint(Sketcher.Constraint("Symmetric", 1, 3, 2, 3, -2))
sketch9.addConstraint(Sketcher.Constraint("Symmetric", 0, 3, 3, 3, -2))
sketch9.addConstraint(Sketcher.Constraint("Symmetric", 4, 3, 5, 3, -2))
sketch9.addConstraint(Sketcher.Constraint("Symmetric", 6, 3, 7, 3, -2))
sketch9.addConstraint(Sketcher.Constraint("Vertical", 0, 3, 1, 3))
sketch9.addConstraint(Sketcher.Constraint("Vertical", 5, 3, 6, 3))
sketch9.addConstraint(Sketcher.Constraint("Diameter", 0, 3.0))
sketch9.addConstraint(Sketcher.Constraint("Diameter", 4, 2.5))
sketch9.addConstraint(Sketcher.Constraint("DistanceX", -1, 1, 0, 3, 36.0))
sketch9.addConstraint(Sketcher.Constraint("DistanceY", -1, 1, 0, 3, 79.0))
sketch9.addConstraint(Sketcher.Constraint("DistanceY", -1, 1, 1, 3, 121.0))
sketch9.addConstraint(Sketcher.Constraint("DistanceY", -1, 1, 4, 3, 71.0))
sketch9.addConstraint(Sketcher.Constraint("DistanceY", -1, 1, 6, 3, 129.0))
sketch9.addConstraint(Sketcher.Constraint("DistanceX", 4, 3, 5, 3, 49.0))
pocket8 = body.newObject("PartDesign::Pocket", "Pocket007")
pocket8.Profile = sketch9
pocket8.Length = 10
pocket8.Reversed = True

sketch10 = body.newObject("Sketcher::SketchObject", "Sketch009")
sketch10.AttachmentSupport = (doc.getObject("XZ_Plane"), [""])
sketch10.MapMode = "FlatFace"
sketch10.AttachmentOffset = App.Placement(App.Vector(0, 0, -4), App.Rotation())
sketch10.addGeometry(Part.Circle(App.Vector(75.36, -5, 0), App.Vector(0, 0, 1), 1.5), False)
sketch10.addGeometry(Part.Circle(App.Vector(75.36, 5, 0), App.Vector(0, 0, 1), 1.5), False)
sketch10.addGeometry(Part.Circle(App.Vector(124.86, 5, 0), App.Vector(0, 0, 1), 1.5), False)
sketch10.addGeometry(Part.Circle(App.Vector(124.86, -5, 0), App.Vector(0, 0, 1), 1.5), False)
sketch10.addGeometry(Part.LineSegment(App.Vector(79.11, -11.5, 0), App.Vector(79.11, 11.5, 0)), False)
sketch10.addGeometry(Part.LineSegment(App.Vector(79.11, 11.5, 0), App.Vector(121.11, 11.5, 0)), False)
sketch10.addGeometry(Part.LineSegment(App.Vector(121.11, 11.5, 0), App.Vector(121.11, -11.5, 0)), False)
sketch10.addGeometry(Part.LineSegment(App.Vector(121.11, -11.5, 0), App.Vector(79.11, -11.5, 0)), False)
sketch10.addConstraint(Sketcher.Constraint("Coincident", 4, 2, 5, 1))
sketch10.addConstraint(Sketcher.Constraint("Coincident", 5, 2, 6, 1))
sketch10.addConstraint(Sketcher.Constraint("Coincident", 6, 2, 7, 1))
sketch10.addConstraint(Sketcher.Constraint("Coincident", 7, 2, 4, 1))
sketch10.addConstraint(Sketcher.Constraint("Vertical", 4))
sketch10.addConstraint(Sketcher.Constraint("Horizontal", 5))
sketch10.addConstraint(Sketcher.Constraint("Vertical", 6))
sketch10.addConstraint(Sketcher.Constraint("Horizontal", 7))
sketch10.addConstraint(Sketcher.Constraint("Equal", 0, 1))
sketch10.addConstraint(Sketcher.Constraint("Equal", 1, 2))
sketch10.addConstraint(Sketcher.Constraint("Equal", 2, 3))
sketch10.addConstraint(Sketcher.Constraint("Symmetric", 0, 3, 1, 3, -1))
sketch10.addConstraint(Sketcher.Constraint("Symmetric", 2, 3, 3, 3, -1))
sketch10.addConstraint(Sketcher.Constraint("Horizontal", 1, 3, 2, 3))
sketch10.addConstraint(Sketcher.Constraint("Diameter", 0, 3.0))
sketch10.addConstraint(Sketcher.Constraint("DistanceX", 5, 1, 5, 2, 42.0))
sketch10.addConstraint(Sketcher.Constraint("DistanceY", 4, 1, 4, 2, 23.0))
sketch10.addConstraint(Sketcher.Constraint("DistanceY", 0, 3, -1, 1, 5.0))
sketch10.addConstraint(Sketcher.Constraint("DistanceY", -1, 1, 4, 2, 11.5))
sketch10.addConstraint(Sketcher.Constraint("DistanceX", 1, 3, 2, 3, 49.5))
sketch10.addConstraint(Sketcher.Constraint("DistanceX", -1, 1, 0, 3, 75.36))
sketch10.addConstraint(Sketcher.Constraint("DistanceX", -1, 1, 4, 2, 79.11))
pocket9 = body.newObject("PartDesign::Pocket", "Pocket008")
pocket9.Profile = sketch10
pocket9.Length = 10
pocket9.Reversed = True
doc.recompute()

fillet2 = body.newObject("PartDesign::Fillet", "Fillet001")
fillet2.Base = (pocket9, edges_at(pocket9, [
    (121.11, 2, -11.5),
    (121.11, 2, 11.5),
    (79.11, 2, 11.5),
    (79.11, 2, -11.5),
]))
fillet2.Radius = 1

sketch11 = body.newObject("Sketcher::SketchObject", "Sketch010")
sketch11.AttachmentSupport = (doc.getObject("XZ_Plane"), [""])
sketch11.MapMode = "FlatFace"
sketch11.AttachmentOffset = App.Placement(App.Vector(0, 0, -4), App.Rotation())
sketch11.addGeometry(Part.Circle(App.Vector(-73.5, -41, 0), App.Vector(0, 0, 1), 1.25), False)
sketch11.addGeometry(Part.Circle(App.Vector(-122.5, -41, 0), App.Vector(0, 0, 1), 1.25), False)
sketch11.addGeometry(Part.Circle(App.Vector(-73.5, 17, 0), App.Vector(0, 0, 1), 1.25), False)
sketch11.addGeometry(Part.Circle(App.Vector(-122.5, 17, 0), App.Vector(0, 0, 1), 1.25), False)
sketch11.addConstraint(Sketcher.Constraint("Equal", 0, 1))
sketch11.addConstraint(Sketcher.Constraint("Equal", 1, 2))
sketch11.addConstraint(Sketcher.Constraint("Equal", 2, 3))
sketch11.addConstraint(Sketcher.Constraint("Horizontal", 0, 3, 1, 3))
sketch11.addConstraint(Sketcher.Constraint("Horizontal", 2, 3, 3, 3))
sketch11.addConstraint(Sketcher.Constraint("Vertical", 0, 3, 2, 3))
sketch11.addConstraint(Sketcher.Constraint("Vertical", 1, 3, 3, 3))
sketch11.addConstraint(Sketcher.Constraint("Diameter", 0, 2.5))
sketch11.addConstraint(Sketcher.Constraint("DistanceY", 0, 3, -1, 1, 41.0))
sketch11.addConstraint(Sketcher.Constraint("DistanceY", -1, 1, 2, 3, 17.0))
sketch11.addConstraint(Sketcher.Constraint("DistanceX", 1, 3, 0, 3, 49.0))
sketch11.addConstraint(Sketcher.Constraint("DistanceX", 0, 3, -1, 1, 73.5))
pocket10 = body.newObject("PartDesign::Pocket", "Pocket009")
pocket10.Profile = sketch11
pocket10.Length = 10
pocket10.Reversed = True

sketch12 = body.newObject("Sketcher::SketchObject", "Sketch011")
sketch12.AttachmentSupport = (doc.getObject("XZ_Plane"), [""])
sketch12.MapMode = "FlatFace"
sketch12.AttachmentOffset = App.Placement(App.Vector(0, 0, -4), App.Rotation())
sketch12.addGeometry(Part.Circle(App.Vector(-81, -31, 0), App.Vector(0, 0, 1), 1.25), False)
sketch12.addGeometry(Part.Circle(App.Vector(-139, -31, 0), App.Vector(0, 0, 1), 1.25), False)
sketch12.addGeometry(Part.Circle(App.Vector(-81, 55, 0), App.Vector(0, 0, 1), 1.25), False)
sketch12.addGeometry(Part.Circle(App.Vector(-139, 55, 0), App.Vector(0, 0, 1), 1.25), False)
sketch12.addConstraint(Sketcher.Constraint("Equal", 0, 1))
sketch12.addConstraint(Sketcher.Constraint("Equal", 1, 2))
sketch12.addConstraint(Sketcher.Constraint("Equal", 2, 3))
sketch12.addConstraint(Sketcher.Constraint("Horizontal", 0, 3, 1, 3))
sketch12.addConstraint(Sketcher.Constraint("Horizontal", 2, 3, 3, 3))
sketch12.addConstraint(Sketcher.Constraint("Vertical", 0, 3, 2, 3))
sketch12.addConstraint(Sketcher.Constraint("Vertical", 1, 3, 3, 3))
sketch12.addConstraint(Sketcher.Constraint("Diameter", 0, 2.5))
sketch12.addConstraint(Sketcher.Constraint("DistanceX", 0, 3, -1, 1, 81.0))
sketch12.addConstraint(Sketcher.Constraint("DistanceY", 0, 3, -1, 1, 31.0))
sketch12.addConstraint(Sketcher.Constraint("DistanceX", 1, 3, -1, 1, 139.0))
sketch12.addConstraint(Sketcher.Constraint("DistanceY", -1, 1, 2, 3, 55.0))
pocket11 = body.newObject("PartDesign::Pocket", "Pocket010")
pocket11.Profile = sketch12
pocket11.Length = 10
pocket11.Reversed = True

sketch13 = body.newObject("Sketcher::SketchObject", "Sketch012")
sketch13.AttachmentSupport = (doc.getObject("XZ_Plane"), [""])
sketch13.MapMode = "FlatFace"
sketch13.AttachmentOffset = App.Placement(App.Vector(0, 0, -4), App.Rotation())
sketch13.addGeometry(Part.Circle(App.Vector(-136, 71, 0), App.Vector(0, 0, 1), 1.5), False)
sketch13.addGeometry(Part.Circle(App.Vector(-36, 71, 0), App.Vector(0, 0, 1), 1.5), False)
sketch13.addGeometry(Part.Circle(App.Vector(-36, 121, 0), App.Vector(0, 0, 1), 1.5), False)
sketch13.addConstraint(Sketcher.Constraint("Equal", 0, 1))
sketch13.addConstraint(Sketcher.Constraint("Equal", 1, 2))
sketch13.addConstraint(Sketcher.Constraint("Horizontal", 0, 3, 1, 3))
sketch13.addConstraint(Sketcher.Constraint("Vertical", 1, 3, 2, 3))
sketch13.addConstraint(Sketcher.Constraint("Diameter", 0, 3.0))
sketch13.addConstraint(Sketcher.Constraint("DistanceX", 0, 3, -1, 1, 136.0))
sketch13.addConstraint(Sketcher.Constraint("DistanceY", -1, 1, 0, 3, 71.0))
sketch13.addConstraint(Sketcher.Constraint("DistanceX", 1, 3, -1, 1, 36.0))
sketch13.addConstraint(Sketcher.Constraint("DistanceY", -1, 1, 2, 3, 121.0))
pocket12 = body.newObject("PartDesign::Pocket", "Pocket011")
pocket12.Profile = sketch13
pocket12.Length = 10
pocket12.Reversed = True

sketch14 = body.newObject("Sketcher::SketchObject", "Sketch013")
sketch14.AttachmentSupport = (doc.getObject("XZ_Plane"), [""])
sketch14.MapMode = "FlatFace"
sketch14.AttachmentOffset = App.Placement(App.Vector(0, 0, -4), App.Rotation())
sketch14.addGeometry(Part.Circle(App.Vector(-60, -60, 0), App.Vector(0, 0, 1), 1.5), False)
sketch14.addConstraint(Sketcher.Constraint("Diameter", 0, 3.0))
sketch14.addConstraint(Sketcher.Constraint("DistanceX", 0, 3, -1, 1, 60.0))
sketch14.addConstraint(Sketcher.Constraint("DistanceY", 0, 3, -1, 1, 60.0))
pocket13 = body.newObject("PartDesign::Pocket", "Pocket012")
pocket13.Profile = sketch14
pocket13.Length = 10
pocket13.Reversed = True

sketch15 = body.newObject("Sketcher::SketchObject", "Sketch014")
sketch15.AttachmentSupport = (doc.getObject("XZ_Plane"), [""])
sketch15.MapMode = "FlatFace"
sketch15.AttachmentOffset = App.Placement(App.Vector(0, 0, -4), App.Rotation())
sketch15.addGeometry(Part.Circle(App.Vector(-30, 115, 0), App.Vector(0, 0, 1), 1.5), False)
sketch15.addGeometry(Part.Circle(App.Vector(-30, 100, 0), App.Vector(0, 0, 1), 1.5), False)
sketch15.addGeometry(Part.Circle(App.Vector(-15, 100, 0), App.Vector(0, 0, 1), 1.5), False)
sketch15.addGeometry(Part.Circle(App.Vector(-15, 115, 0), App.Vector(0, 0, 1), 1.5), False)
sketch15.addGeometry(Part.Circle(App.Vector(15, 115, 0), App.Vector(0, 0, 1), 1.5), False)
sketch15.addGeometry(Part.Circle(App.Vector(30, 115, 0), App.Vector(0, 0, 1), 1.5), False)
sketch15.addGeometry(Part.Circle(App.Vector(15, 100, 0), App.Vector(0, 0, 1), 1.5), False)
sketch15.addGeometry(Part.Circle(App.Vector(30, 100, 0), App.Vector(0, 0, 1), 1.5), False)
sketch15.addGeometry(Part.Circle(App.Vector(-30, 85, 0), App.Vector(0, 0, 1), 1.5), False)
sketch15.addGeometry(Part.Circle(App.Vector(-15, 85, 0), App.Vector(0, 0, 1), 1.5), False)
sketch15.addGeometry(Part.Circle(App.Vector(15, 85, 0), App.Vector(0, 0, 1), 1.5), False)
sketch15.addGeometry(Part.Circle(App.Vector(30, 85, 0), App.Vector(0, 0, 1), 1.5), False)
sketch15.addGeometry(Part.Circle(App.Vector(-30, 50, 0), App.Vector(0, 0, 1), 1.5), False)
sketch15.addGeometry(Part.Circle(App.Vector(-15, 50, 0), App.Vector(0, 0, 1), 1.5), False)
sketch15.addGeometry(Part.Circle(App.Vector(15, 50, 0), App.Vector(0, 0, 1), 1.5), False)
sketch15.addGeometry(Part.Circle(App.Vector(30, 50, 0), App.Vector(0, 0, 1), 1.5), False)
sketch15.addGeometry(Part.Circle(App.Vector(-30, -50, 0), App.Vector(0, 0, 1), 1.5), False)
sketch15.addGeometry(Part.Circle(App.Vector(-15, -50, 0), App.Vector(0, 0, 1), 1.5), False)
sketch15.addGeometry(Part.Circle(App.Vector(15, -50, 0), App.Vector(0, 0, 1), 1.5), False)
sketch15.addGeometry(Part.Circle(App.Vector(30, -50, 0), App.Vector(0, 0, 1), 1.5), False)
sketch15.addGeometry(Part.Circle(App.Vector(-30, -60, 0), App.Vector(0, 0, 1), 1.5), False)
sketch15.addGeometry(Part.Circle(App.Vector(-15, -60, 0), App.Vector(0, 0, 1), 1.5), False)
sketch15.addGeometry(Part.Circle(App.Vector(15, -60, 0), App.Vector(0, 0, 1), 1.5), False)
sketch15.addGeometry(Part.Circle(App.Vector(30, -60, 0), App.Vector(0, 0, 1), 1.5), False)
sketch15.addGeometry(Part.Circle(App.Vector(-30, -130, 0), App.Vector(0, 0, 1), 1.5), False)
sketch15.addGeometry(Part.Circle(App.Vector(-15, -130, 0), App.Vector(0, 0, 1), 1.5), False)
sketch15.addGeometry(Part.Circle(App.Vector(15, -130, 0), App.Vector(0, 0, 1), 1.5), False)
sketch15.addGeometry(Part.Circle(App.Vector(30, -130, 0), App.Vector(0, 0, 1), 1.5), False)
sketch15.addConstraint(Sketcher.Constraint("Equal", 0, 1))
sketch15.addConstraint(Sketcher.Constraint("Equal", 1, 2))
sketch15.addConstraint(Sketcher.Constraint("Equal", 2, 3))
sketch15.addConstraint(Sketcher.Constraint("Equal", 3, 4))
sketch15.addConstraint(Sketcher.Constraint("Equal", 4, 5))
sketch15.addConstraint(Sketcher.Constraint("Equal", 5, 6))
sketch15.addConstraint(Sketcher.Constraint("Equal", 6, 7))
sketch15.addConstraint(Sketcher.Constraint("Equal", 7, 8))
sketch15.addConstraint(Sketcher.Constraint("Equal", 8, 9))
sketch15.addConstraint(Sketcher.Constraint("Equal", 9, 10))
sketch15.addConstraint(Sketcher.Constraint("Equal", 10, 11))
sketch15.addConstraint(Sketcher.Constraint("Equal", 11, 12))
sketch15.addConstraint(Sketcher.Constraint("Equal", 12, 13))
sketch15.addConstraint(Sketcher.Constraint("Equal", 13, 14))
sketch15.addConstraint(Sketcher.Constraint("Equal", 14, 15))
sketch15.addConstraint(Sketcher.Constraint("Equal", 15, 16))
sketch15.addConstraint(Sketcher.Constraint("Equal", 16, 17))
sketch15.addConstraint(Sketcher.Constraint("Equal", 17, 18))
sketch15.addConstraint(Sketcher.Constraint("Equal", 18, 19))
sketch15.addConstraint(Sketcher.Constraint("Equal", 19, 20))
sketch15.addConstraint(Sketcher.Constraint("Equal", 20, 21))
sketch15.addConstraint(Sketcher.Constraint("Equal", 21, 22))
sketch15.addConstraint(Sketcher.Constraint("Equal", 22, 23))
sketch15.addConstraint(Sketcher.Constraint("Equal", 23, 24))
sketch15.addConstraint(Sketcher.Constraint("Equal", 24, 25))
sketch15.addConstraint(Sketcher.Constraint("Equal", 25, 26))
sketch15.addConstraint(Sketcher.Constraint("Equal", 26, 27))
sketch15.addConstraint(Sketcher.Constraint("Symmetric", 15, 3, 16, 3, -1, 1))
sketch15.addConstraint(Sketcher.Constraint("Symmetric", 14, 3, 17, 3, -1, 1))
sketch15.addConstraint(Sketcher.Constraint("Symmetric", 13, 3, 18, 3, -1, 1))
sketch15.addConstraint(Sketcher.Constraint("Symmetric", 12, 3, 19, 3, -1, 1))
sketch15.addConstraint(Sketcher.Constraint("Symmetric", 3, 3, 4, 3, -2))
sketch15.addConstraint(Sketcher.Constraint("Symmetric", 0, 3, 5, 3, -2))
sketch15.addConstraint(Sketcher.Constraint("Symmetric", 2, 3, 6, 3, -2))
sketch15.addConstraint(Sketcher.Constraint("Symmetric", 1, 3, 7, 3, -2))
sketch15.addConstraint(Sketcher.Constraint("Symmetric", 9, 3, 10, 3, -2))
sketch15.addConstraint(Sketcher.Constraint("Symmetric", 8, 3, 11, 3, -2))
sketch15.addConstraint(Sketcher.Constraint("Symmetric", 13, 3, 14, 3, -2))
sketch15.addConstraint(Sketcher.Constraint("Symmetric", 12, 3, 15, 3, -2))
sketch15.addConstraint(Sketcher.Constraint("Symmetric", 21, 3, 22, 3, -2))
sketch15.addConstraint(Sketcher.Constraint("Symmetric", 20, 3, 23, 3, -2))
sketch15.addConstraint(Sketcher.Constraint("Symmetric", 25, 3, 26, 3, -2))
sketch15.addConstraint(Sketcher.Constraint("Symmetric", 24, 3, 27, 3, -2))
sketch15.addConstraint(Sketcher.Constraint("Horizontal", 1, 3, 2, 3))
sketch15.addConstraint(Sketcher.Constraint("Horizontal", 0, 3, 3, 3))
sketch15.addConstraint(Sketcher.Constraint("Horizontal", 8, 3, 9, 3))
sketch15.addConstraint(Sketcher.Constraint("Horizontal", 12, 3, 13, 3))
sketch15.addConstraint(Sketcher.Constraint("Horizontal", 20, 3, 21, 3))
sketch15.addConstraint(Sketcher.Constraint("Horizontal", 24, 3, 25, 3))
sketch15.addConstraint(Sketcher.Constraint("Vertical", 0, 3, 1, 3))
sketch15.addConstraint(Sketcher.Constraint("Vertical", 2, 3, 3, 3))
sketch15.addConstraint(Sketcher.Constraint("Vertical", 1, 3, 8, 3))
sketch15.addConstraint(Sketcher.Constraint("Vertical", 3, 3, 9, 3))
sketch15.addConstraint(Sketcher.Constraint("Vertical", 8, 3, 12, 3))
sketch15.addConstraint(Sketcher.Constraint("Vertical", 9, 3, 13, 3))
sketch15.addConstraint(Sketcher.Constraint("Vertical", 16, 3, 20, 3))
sketch15.addConstraint(Sketcher.Constraint("Vertical", 17, 3, 21, 3))
sketch15.addConstraint(Sketcher.Constraint("Vertical", 20, 3, 24, 3))
sketch15.addConstraint(Sketcher.Constraint("Vertical", 21, 3, 25, 3))
sketch15.addConstraint(Sketcher.Constraint("Diameter", 0, 3.0))
sketch15.addConstraint(Sketcher.Constraint("DistanceX", 0, 3, -1, 1, 30.0))
sketch15.addConstraint(Sketcher.Constraint("DistanceY", -1, 1, 0, 3, 115.0))
sketch15.addConstraint(Sketcher.Constraint("DistanceY", -1, 1, 1, 3, 100.0))
sketch15.addConstraint(Sketcher.Constraint("DistanceX", 2, 3, -1, 1, 15.0))
sketch15.addConstraint(Sketcher.Constraint("DistanceY", -1, 1, 8, 3, 85.0))
sketch15.addConstraint(Sketcher.Constraint("DistanceY", -1, 1, 12, 3, 50.0))
sketch15.addConstraint(Sketcher.Constraint("DistanceY", 20, 3, -1, 1, 60.0))
sketch15.addConstraint(Sketcher.Constraint("DistanceY", 24, 3, -1, 1, 130.0))
pocket14 = body.newObject("PartDesign::Pocket", "Pocket013")
pocket14.Profile = sketch15
pocket14.Length = 10
pocket14.Reversed = True

doc.recompute()
